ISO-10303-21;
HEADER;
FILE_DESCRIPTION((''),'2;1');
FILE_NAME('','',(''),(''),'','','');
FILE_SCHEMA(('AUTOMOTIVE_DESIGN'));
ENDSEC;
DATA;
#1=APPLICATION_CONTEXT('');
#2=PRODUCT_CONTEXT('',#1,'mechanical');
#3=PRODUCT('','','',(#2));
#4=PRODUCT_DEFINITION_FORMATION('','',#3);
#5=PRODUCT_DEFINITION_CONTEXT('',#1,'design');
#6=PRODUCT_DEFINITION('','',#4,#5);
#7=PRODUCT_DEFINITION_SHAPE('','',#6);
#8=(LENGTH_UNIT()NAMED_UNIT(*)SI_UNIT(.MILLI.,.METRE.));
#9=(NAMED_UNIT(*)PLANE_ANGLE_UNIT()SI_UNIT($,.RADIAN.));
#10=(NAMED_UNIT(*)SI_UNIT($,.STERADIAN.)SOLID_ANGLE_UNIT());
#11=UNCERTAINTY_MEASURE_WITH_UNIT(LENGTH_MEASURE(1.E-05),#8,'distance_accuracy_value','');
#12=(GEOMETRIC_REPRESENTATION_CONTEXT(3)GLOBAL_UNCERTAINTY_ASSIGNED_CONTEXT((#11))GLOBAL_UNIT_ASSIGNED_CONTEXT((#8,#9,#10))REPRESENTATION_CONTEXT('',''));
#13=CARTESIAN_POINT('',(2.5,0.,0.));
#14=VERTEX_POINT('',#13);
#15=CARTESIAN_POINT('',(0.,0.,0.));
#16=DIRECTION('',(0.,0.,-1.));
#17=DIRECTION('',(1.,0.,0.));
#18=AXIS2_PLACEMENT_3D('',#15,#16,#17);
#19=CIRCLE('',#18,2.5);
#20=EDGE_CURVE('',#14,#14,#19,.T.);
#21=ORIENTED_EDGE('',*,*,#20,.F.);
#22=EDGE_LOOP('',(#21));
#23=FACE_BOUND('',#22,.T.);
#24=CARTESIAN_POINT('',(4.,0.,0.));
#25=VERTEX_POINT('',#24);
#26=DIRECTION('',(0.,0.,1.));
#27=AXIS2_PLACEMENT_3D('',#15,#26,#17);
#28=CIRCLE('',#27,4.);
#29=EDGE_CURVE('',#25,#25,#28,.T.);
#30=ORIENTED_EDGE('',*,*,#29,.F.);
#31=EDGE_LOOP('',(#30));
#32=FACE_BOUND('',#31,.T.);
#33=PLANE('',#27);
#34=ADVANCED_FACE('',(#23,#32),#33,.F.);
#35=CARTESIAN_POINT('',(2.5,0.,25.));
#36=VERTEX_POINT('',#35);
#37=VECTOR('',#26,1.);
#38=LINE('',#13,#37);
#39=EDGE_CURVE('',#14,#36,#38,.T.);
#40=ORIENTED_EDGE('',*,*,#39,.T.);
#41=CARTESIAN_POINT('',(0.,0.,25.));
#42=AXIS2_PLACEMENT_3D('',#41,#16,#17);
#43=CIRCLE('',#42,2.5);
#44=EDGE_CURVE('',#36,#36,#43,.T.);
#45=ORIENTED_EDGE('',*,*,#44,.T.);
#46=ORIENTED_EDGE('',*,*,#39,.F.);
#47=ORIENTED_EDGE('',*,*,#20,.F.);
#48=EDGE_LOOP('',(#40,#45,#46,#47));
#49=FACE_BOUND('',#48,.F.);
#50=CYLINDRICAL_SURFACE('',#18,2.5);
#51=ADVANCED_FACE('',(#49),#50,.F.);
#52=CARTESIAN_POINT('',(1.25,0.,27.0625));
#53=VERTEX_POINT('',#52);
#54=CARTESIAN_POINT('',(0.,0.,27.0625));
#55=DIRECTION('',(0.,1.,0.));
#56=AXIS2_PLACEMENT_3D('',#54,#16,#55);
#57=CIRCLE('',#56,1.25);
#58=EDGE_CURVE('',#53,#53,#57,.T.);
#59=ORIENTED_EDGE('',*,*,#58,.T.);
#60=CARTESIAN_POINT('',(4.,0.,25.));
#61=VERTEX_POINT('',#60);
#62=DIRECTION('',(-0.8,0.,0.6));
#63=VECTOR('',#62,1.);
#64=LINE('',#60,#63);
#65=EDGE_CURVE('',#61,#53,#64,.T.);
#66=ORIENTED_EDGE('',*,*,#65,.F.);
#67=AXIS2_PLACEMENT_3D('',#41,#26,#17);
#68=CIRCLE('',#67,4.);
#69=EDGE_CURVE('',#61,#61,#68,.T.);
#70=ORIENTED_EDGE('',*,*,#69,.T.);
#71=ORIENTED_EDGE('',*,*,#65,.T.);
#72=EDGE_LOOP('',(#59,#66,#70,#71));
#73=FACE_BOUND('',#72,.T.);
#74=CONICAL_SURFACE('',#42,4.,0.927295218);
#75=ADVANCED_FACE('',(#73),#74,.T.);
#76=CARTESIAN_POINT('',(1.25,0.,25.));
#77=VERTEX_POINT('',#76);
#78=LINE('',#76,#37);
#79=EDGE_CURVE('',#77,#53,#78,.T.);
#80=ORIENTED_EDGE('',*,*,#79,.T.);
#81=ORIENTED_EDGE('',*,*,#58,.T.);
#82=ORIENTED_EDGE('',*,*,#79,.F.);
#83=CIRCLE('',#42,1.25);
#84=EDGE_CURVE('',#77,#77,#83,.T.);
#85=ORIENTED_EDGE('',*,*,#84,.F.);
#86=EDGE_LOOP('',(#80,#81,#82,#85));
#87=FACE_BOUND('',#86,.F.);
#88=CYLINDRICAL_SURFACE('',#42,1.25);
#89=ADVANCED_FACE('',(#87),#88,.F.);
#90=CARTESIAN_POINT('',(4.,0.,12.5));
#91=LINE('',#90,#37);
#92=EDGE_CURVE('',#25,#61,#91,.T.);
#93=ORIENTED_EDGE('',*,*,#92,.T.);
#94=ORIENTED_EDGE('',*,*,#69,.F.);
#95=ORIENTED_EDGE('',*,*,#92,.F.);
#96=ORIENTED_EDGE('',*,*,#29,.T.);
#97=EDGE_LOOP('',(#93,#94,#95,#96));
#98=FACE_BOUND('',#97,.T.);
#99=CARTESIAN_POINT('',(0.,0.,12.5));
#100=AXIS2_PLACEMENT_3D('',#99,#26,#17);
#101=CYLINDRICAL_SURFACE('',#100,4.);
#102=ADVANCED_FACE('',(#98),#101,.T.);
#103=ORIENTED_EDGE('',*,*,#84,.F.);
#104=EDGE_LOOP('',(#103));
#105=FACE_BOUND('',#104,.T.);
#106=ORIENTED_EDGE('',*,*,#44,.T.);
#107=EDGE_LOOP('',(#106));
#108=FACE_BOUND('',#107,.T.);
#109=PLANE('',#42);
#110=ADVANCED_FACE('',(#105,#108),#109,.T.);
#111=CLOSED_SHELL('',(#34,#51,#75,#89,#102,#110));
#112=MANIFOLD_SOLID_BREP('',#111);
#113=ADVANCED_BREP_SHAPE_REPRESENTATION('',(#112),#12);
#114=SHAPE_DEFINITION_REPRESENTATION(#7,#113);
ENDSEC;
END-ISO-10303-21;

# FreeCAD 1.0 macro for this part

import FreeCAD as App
import Part
import Sketcher
Q = App.Units.Quantity

doc = App.newDocument("Part")
body = doc.addObject("PartDesign::Body", "Body")

# Sketch on XZ plane
sketch1 = doc.addObject("Sketcher::SketchObject", "Sketch")
body.addObject(sketch1)
sketch1.AttachmentSupport = (doc.XZ_Plane, [""])
sketch1.MapMode = "FlatFace"
sketch1.addGeometry([
    Part.LineSegment(App.Vector(0, 0, 0), App.Vector(4, 0, 0)),
    Part.LineSegment(App.Vector(4, 0, 0), App.Vector(4, 25, 0)),
    Part.LineSegment(App.Vector(4, 25, 0), App.Vector(0, 28, 0)),
    Part.LineSegment(App.Vector(0, 28, 0), App.Vector(0, 0, 0)),
], False)
sketch1.addConstraint([
    Sketcher.Constraint("Coincident", 0, 2, 1, 1),
    Sketcher.Constraint("Coincident", 1, 2, 2, 1),
    Sketcher.Constraint("Coincident", 2, 2, 3, 1),
    Sketcher.Constraint("Coincident", 3, 2, 0, 1),
    Sketcher.Constraint("Horizontal", 0),
    Sketcher.Constraint("Vertical", 1),
    Sketcher.Constraint("Vertical", 3),
    Sketcher.Constraint("Coincident", 3, 2, -1, 1),
    Sketcher.Constraint("DistanceX", 0, 1, 0, 2, Q("4 mm")),
    Sketcher.Constraint("DistanceY", 1, 1, 1, 2, Q("25 mm")),
    Sketcher.Constraint("DistanceY", 3, 2, 3, 1, Q("28 mm")),
])
revolution = doc.addObject("PartDesign::Revolution", "Revolution")
body.addObject(revolution)
revolution.Profile = sketch1
revolution.ReferenceAxis = (sketch1, ["V_Axis"])
revolution.Angle = 360

# Sketch on XY plane
sketch2 = doc.addObject("Sketcher::SketchObject", "Sketch001")
body.addObject(sketch2)
sketch2.AttachmentSupport = (doc.XY_Plane, [""])
sketch2.MapMode = "FlatFace"
sketch2.addGeometry(Part.Circle(App.Vector(0, 0, 0), App.Vector(0, 0, 1), 2.5), False)
sketch2.addConstraint([
    Sketcher.Constraint("Coincident", 0, 3, -1, 1),
    Sketcher.Constraint("Diameter", 0, Q("5 mm")),
])
pocket1 = doc.addObject("PartDesign::Pocket", "Pocket")
body.addObject(pocket1)
pocket1.Profile = sketch2
pocket1.Length = 25
pocket1.Reversed = True

# Sketch on XY plane
sketch3 = doc.addObject("Sketcher::SketchObject", "Sketch002")
body.addObject(sketch3)
sketch3.AttachmentSupport = (doc.XY_Plane, [""])
sketch3.MapMode = "FlatFace"
sketch3.AttachmentOffset = App.Placement(App.Vector(0, 0, 25), App.Rotation())
sketch3.addGeometry(Part.Circle(App.Vector(0, 0, 0), App.Vector(0, 0, 1), 1.25), False)
sketch3.addConstraint([
    Sketcher.Constraint("Coincident", 0, 3, -1, 1),
    Sketcher.Constraint("Diameter", 0, Q("2.5 mm")),
])
pocket2 = doc.addObject("PartDesign::Pocket", "Pocket001")
body.addObject(pocket2)
pocket2.Profile = sketch3
pocket2.Length = 25
pocket2.Reversed = True

doc.recompute()
